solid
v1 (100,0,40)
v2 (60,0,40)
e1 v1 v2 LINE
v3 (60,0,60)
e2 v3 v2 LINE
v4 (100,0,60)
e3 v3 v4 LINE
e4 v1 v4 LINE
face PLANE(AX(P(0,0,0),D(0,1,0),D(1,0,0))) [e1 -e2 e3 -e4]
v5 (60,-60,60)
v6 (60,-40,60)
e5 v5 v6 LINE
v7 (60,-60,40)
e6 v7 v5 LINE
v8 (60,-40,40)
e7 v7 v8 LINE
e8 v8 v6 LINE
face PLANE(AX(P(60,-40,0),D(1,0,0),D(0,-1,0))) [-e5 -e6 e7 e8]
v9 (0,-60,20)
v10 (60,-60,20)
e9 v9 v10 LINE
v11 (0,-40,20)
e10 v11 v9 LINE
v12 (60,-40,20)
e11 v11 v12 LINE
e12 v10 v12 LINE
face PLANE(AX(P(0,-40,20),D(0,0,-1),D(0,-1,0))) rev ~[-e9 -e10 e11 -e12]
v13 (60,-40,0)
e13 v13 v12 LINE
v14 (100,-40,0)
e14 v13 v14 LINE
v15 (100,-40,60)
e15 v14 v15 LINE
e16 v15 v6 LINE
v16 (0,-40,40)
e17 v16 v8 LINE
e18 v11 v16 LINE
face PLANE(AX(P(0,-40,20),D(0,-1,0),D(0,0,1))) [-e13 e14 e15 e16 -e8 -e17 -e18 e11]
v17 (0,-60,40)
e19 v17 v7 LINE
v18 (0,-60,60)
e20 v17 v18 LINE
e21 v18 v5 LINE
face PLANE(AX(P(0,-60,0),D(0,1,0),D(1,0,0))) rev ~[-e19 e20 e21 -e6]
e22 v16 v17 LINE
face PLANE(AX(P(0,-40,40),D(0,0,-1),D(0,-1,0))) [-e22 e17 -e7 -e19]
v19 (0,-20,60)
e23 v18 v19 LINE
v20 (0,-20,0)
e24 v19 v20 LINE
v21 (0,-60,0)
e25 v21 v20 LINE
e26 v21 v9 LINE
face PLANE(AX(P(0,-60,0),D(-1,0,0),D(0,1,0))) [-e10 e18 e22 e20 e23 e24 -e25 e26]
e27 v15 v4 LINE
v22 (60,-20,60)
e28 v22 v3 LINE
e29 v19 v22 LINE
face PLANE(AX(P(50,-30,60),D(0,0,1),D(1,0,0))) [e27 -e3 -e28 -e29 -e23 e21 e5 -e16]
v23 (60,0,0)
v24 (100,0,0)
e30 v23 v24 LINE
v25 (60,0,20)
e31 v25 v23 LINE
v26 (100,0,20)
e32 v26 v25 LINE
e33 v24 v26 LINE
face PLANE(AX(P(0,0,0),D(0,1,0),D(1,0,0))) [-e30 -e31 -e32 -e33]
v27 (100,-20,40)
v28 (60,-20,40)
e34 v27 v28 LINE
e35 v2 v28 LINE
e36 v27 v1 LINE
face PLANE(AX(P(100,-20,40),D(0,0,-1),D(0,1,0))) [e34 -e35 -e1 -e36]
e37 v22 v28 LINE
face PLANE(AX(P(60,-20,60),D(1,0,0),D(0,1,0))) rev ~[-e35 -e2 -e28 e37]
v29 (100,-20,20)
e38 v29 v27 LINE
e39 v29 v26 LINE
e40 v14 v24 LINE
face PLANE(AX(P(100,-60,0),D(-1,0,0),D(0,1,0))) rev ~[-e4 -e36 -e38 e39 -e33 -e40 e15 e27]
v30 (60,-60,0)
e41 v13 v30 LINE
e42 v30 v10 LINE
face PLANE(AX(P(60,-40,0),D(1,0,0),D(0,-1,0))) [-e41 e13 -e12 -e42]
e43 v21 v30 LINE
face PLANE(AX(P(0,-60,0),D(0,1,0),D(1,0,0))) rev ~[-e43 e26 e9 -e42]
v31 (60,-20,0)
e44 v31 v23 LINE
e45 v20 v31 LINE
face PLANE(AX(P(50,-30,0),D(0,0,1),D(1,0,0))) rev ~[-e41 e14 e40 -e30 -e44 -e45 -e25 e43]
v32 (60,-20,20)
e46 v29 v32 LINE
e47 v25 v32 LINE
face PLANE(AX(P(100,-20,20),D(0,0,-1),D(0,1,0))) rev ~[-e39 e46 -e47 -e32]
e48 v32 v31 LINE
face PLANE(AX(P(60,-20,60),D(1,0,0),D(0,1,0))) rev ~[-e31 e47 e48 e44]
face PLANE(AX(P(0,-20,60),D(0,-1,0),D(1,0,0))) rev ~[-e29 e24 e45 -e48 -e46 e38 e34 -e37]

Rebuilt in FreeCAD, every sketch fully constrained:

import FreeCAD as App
import Part
import Sketcher
from FreeCAD import Vector

doc = App.newDocument("Part")
body = doc.addObject("PartDesign::Body", "Body")

# Sketch on XY plane
sketch1 = doc.addObject("Sketcher::SketchObject", "Sketch")
body.addObject(sketch1)
sketch1.AttachmentSupport = (doc.XY_Plane, [""])
sketch1.MapMode = "FlatFace"
sketch1.addGeometry([
    Part.LineSegment(Vector(0, 0, 0), Vector(0, -60, 0)),
    Part.LineSegment(Vector(0, -60, 0), Vector(100, -60, 0)),
    Part.LineSegment(Vector(100, -60, 0), Vector(100, 0, 0)),
    Part.LineSegment(Vector(100, 0, 0), Vector(0, 0, 0)),
], False)
sketch1.addConstraint([
    Sketcher.Constraint("Coincident", 0, 2, 1, 1),
    Sketcher.Constraint("Coincident", 1, 2, 2, 1),
    Sketcher.Constraint("Coincident", 2, 2, 3, 1),
    Sketcher.Constraint("Coincident", 3, 2, 0, 1),
    Sketcher.Constraint("Vertical", 0),
    Sketcher.Constraint("Horizontal", 1),
    Sketcher.Constraint("Vertical", 2),
    Sketcher.Constraint("Horizontal", 3),
    Sketcher.Constraint("Coincident", 3, 2, -1, 1),
    Sketcher.Constraint("DistanceX", 1, 1, 1, 2, 100.0),
    Sketcher.Constraint("DistanceY", 0, 2, 0, 1, 60.0),
])
pad1 = doc.addObject("PartDesign::Pad", "Pad")
body.addObject(pad1)
pad1.Profile = sketch1
pad1.Length = 60

# Sketch on XY plane
sketch2 = doc.addObject("Sketcher::SketchObject", "Sketch001")
body.addObject(sketch2)
sketch2.AttachmentSupport = (doc.XY_Plane, [""])
sketch2.MapMode = "FlatFace"
sketch2.addGeometry([
    Part.LineSegment(Vector(60, -60, 0), Vector(60, -40, 0)),
    Part.LineSegment(Vector(60, -40, 0), Vector(100, -40, 0)),
    Part.LineSegment(Vector(100, -40, 0), Vector(100, -60, 0)),
    Part.LineSegment(Vector(100, -60, 0), Vector(60, -60, 0)),
], False)
sketch2.addConstraint([
    Sketcher.Constraint("Coincident", 0, 2, 1, 1),
    Sketcher.Constraint("Coincident", 1, 2, 2, 1),
    Sketcher.Constraint("Coincident", 2, 2, 3, 1),
    Sketcher.Constraint("Coincident", 3, 2, 0, 1),
    Sketcher.Constraint("Vertical", 0),
    Sketcher.Constraint("Horizontal", 1),
    Sketcher.Constraint("Vertical", 2),
    Sketcher.Constraint("Horizontal", 3),
    Sketcher.Constraint("DistanceX", 1, 1, 1, 2, 40.0),
    Sketcher.Constraint("DistanceY", 0, 1, 0, 2, 20.0),
    Sketcher.Constraint("DistanceX", -1, 1, 0, 2, 60.0),
    Sketcher.Constraint("DistanceY", 0, 2, -1, 1, 40.0),
])
pocket1 = doc.addObject("PartDesign::Pocket", "Pocket")
body.addObject(pocket1)
pocket1.Profile = sketch2
pocket1.Type = "ThroughAll"
pocket1.Reversed = True

# Sketch on YZ plane
sketch3 = doc.addObject("Sketcher::SketchObject", "Sketch002")
body.addObject(sketch3)
sketch3.AttachmentSupport = (doc.YZ_Plane, [""])
sketch3.MapMode = "FlatFace"
sketch3.AttachmentOffset = App.Placement(Vector(0, 0, 100), App.Rotation())
sketch3.addGeometry([
    Part.LineSegment(Vector(-20, 40, 0), Vector(-20, 20, 0)),
    Part.LineSegment(Vector(-20, 20, 0), Vector(0, 20, 0)),
    Part.LineSegment(Vector(0, 20, 0), Vector(0, 40, 0)),
    Part.LineSegment(Vector(0, 40, 0), Vector(-20, 40, 0)),
], False)
sketch3.addConstraint([
    Sketcher.Constraint("Coincident", 0, 2, 1, 1),
    Sketcher.Constraint("Coincident", 1, 2, 2, 1),
    Sketcher.Constraint("Coincident", 2, 2, 3, 1),
    Sketcher.Constraint("Coincident", 3, 2, 0, 1),
    Sketcher.Constraint("Vertical", 0),
    Sketcher.Constraint("Horizontal", 1),
    Sketcher.Constraint("Vertical", 2),
    Sketcher.Constraint("Horizontal", 3),
    Sketcher.Constraint("PointOnObject", 1, 2, -2),
    Sketcher.Constraint("Equal", 3, 0),
    Sketcher.Constraint("DistanceX", 1, 1, 1, 2, 20.0),
    Sketcher.Constraint("DistanceY", -1, 1, 0, 2, 20.0),
])
pocket2 = doc.addObject("PartDesign::Pocket", "Pocket001")
body.addObject(pocket2)
pocket2.Profile = sketch3
pocket2.Type = "ThroughAll"

# Sketch on XY plane
sketch4 = doc.addObject("Sketcher::SketchObject", "Sketch003")
body.addObject(sketch4)
sketch4.AttachmentSupport = (doc.XY_Plane, [""])
sketch4.MapMode = "FlatFace"
sketch4.AttachmentOffset = App.Placement(Vector(0, 0, 60), App.Rotation())
sketch4.addGeometry([
    Part.LineSegment(Vector(0, 0, 0), Vector(0, -20, 0)),
    Part.LineSegment(Vector(0, -20, 0), Vector(60, -20, 0)),
    Part.LineSegment(Vector(60, -20, 0), Vector(60, 0, 0)),
    Part.LineSegment(Vector(60, 0, 0), Vector(0, 0, 0)),
], False)
sketch4.addConstraint([
    Sketcher.Constraint("Coincident", 0, 2, 1, 1),
    Sketcher.Constraint("Coincident", 1, 2, 2, 1),
    Sketcher.Constraint("Coincident", 2, 2, 3, 1),
    Sketcher.Constraint("Coincident", 3, 2, 0, 1),
    Sketcher.Constraint("Vertical", 0),
    Sketcher.Constraint("Horizontal", 1),
    Sketcher.Constraint("Vertical", 2),
    Sketcher.Constraint("Horizontal", 3),
    Sketcher.Constraint("Coincident", 3, 2, -1, 1),
    Sketcher.Constraint("DistanceX", 1, 1, 1, 2, 60.0),
    Sketcher.Constraint("DistanceY", 0, 2, 0, 1, 20.0),
])
pocket3 = doc.addObject("PartDesign::Pocket", "Pocket002")
body.addObject(pocket3)
pocket3.Profile = sketch4
pocket3.Type = "ThroughAll"

# Sketch on YZ plane
sketch5 = doc.addObject("Sketcher::SketchObject", "Sketch004")
body.addObject(sketch5)
sketch5.AttachmentSupport = (doc.YZ_Plane, [""])
sketch5.MapMode = "FlatFace"
sketch5.addGeometry([
    Part.LineSegment(Vector(-40, 40, 0), Vector(-40, 20, 0)),
    Part.LineSegment(Vector(-40, 20, 0), Vector(-60, 20, 0)),
    Part.LineSegment(Vector(-60, 20, 0), Vector(-60, 40, 0)),
    Part.LineSegment(Vector(-60, 40, 0), Vector(-40, 40, 0)),
], False)
sketch5.addConstraint([
    Sketcher.Constraint("Coincident", 0, 2, 1, 1),
    Sketcher.Constraint("Coincident", 1, 2, 2, 1),
    Sketcher.Constraint("Coincident", 2, 2, 3, 1),
    Sketcher.Constraint("Coincident", 3, 2, 0, 1),
    Sketcher.Constraint("Vertical", 0),
    Sketcher.Constraint("Horizontal", 1),
    Sketcher.Constraint("Vertical", 2),
    Sketcher.Constraint("Horizontal", 3),
    Sketcher.Constraint("Equal", 3, 0),
    Sketcher.Constraint("DistanceX", 1, 2, 1, 1, 20.0),
    Sketcher.Constraint("DistanceX", 0, 2, -1, 1, 40.0),
    Sketcher.Constraint("DistanceY", -1, 1, 0, 2, 20.0),
])
pocket4 = doc.addObject("PartDesign::Pocket", "Pocket003")
body.addObject(pocket4)
pocket4.Profile = sketch5
pocket4.Type = "ThroughAll"
pocket4.Reversed = True

doc.recompute()
